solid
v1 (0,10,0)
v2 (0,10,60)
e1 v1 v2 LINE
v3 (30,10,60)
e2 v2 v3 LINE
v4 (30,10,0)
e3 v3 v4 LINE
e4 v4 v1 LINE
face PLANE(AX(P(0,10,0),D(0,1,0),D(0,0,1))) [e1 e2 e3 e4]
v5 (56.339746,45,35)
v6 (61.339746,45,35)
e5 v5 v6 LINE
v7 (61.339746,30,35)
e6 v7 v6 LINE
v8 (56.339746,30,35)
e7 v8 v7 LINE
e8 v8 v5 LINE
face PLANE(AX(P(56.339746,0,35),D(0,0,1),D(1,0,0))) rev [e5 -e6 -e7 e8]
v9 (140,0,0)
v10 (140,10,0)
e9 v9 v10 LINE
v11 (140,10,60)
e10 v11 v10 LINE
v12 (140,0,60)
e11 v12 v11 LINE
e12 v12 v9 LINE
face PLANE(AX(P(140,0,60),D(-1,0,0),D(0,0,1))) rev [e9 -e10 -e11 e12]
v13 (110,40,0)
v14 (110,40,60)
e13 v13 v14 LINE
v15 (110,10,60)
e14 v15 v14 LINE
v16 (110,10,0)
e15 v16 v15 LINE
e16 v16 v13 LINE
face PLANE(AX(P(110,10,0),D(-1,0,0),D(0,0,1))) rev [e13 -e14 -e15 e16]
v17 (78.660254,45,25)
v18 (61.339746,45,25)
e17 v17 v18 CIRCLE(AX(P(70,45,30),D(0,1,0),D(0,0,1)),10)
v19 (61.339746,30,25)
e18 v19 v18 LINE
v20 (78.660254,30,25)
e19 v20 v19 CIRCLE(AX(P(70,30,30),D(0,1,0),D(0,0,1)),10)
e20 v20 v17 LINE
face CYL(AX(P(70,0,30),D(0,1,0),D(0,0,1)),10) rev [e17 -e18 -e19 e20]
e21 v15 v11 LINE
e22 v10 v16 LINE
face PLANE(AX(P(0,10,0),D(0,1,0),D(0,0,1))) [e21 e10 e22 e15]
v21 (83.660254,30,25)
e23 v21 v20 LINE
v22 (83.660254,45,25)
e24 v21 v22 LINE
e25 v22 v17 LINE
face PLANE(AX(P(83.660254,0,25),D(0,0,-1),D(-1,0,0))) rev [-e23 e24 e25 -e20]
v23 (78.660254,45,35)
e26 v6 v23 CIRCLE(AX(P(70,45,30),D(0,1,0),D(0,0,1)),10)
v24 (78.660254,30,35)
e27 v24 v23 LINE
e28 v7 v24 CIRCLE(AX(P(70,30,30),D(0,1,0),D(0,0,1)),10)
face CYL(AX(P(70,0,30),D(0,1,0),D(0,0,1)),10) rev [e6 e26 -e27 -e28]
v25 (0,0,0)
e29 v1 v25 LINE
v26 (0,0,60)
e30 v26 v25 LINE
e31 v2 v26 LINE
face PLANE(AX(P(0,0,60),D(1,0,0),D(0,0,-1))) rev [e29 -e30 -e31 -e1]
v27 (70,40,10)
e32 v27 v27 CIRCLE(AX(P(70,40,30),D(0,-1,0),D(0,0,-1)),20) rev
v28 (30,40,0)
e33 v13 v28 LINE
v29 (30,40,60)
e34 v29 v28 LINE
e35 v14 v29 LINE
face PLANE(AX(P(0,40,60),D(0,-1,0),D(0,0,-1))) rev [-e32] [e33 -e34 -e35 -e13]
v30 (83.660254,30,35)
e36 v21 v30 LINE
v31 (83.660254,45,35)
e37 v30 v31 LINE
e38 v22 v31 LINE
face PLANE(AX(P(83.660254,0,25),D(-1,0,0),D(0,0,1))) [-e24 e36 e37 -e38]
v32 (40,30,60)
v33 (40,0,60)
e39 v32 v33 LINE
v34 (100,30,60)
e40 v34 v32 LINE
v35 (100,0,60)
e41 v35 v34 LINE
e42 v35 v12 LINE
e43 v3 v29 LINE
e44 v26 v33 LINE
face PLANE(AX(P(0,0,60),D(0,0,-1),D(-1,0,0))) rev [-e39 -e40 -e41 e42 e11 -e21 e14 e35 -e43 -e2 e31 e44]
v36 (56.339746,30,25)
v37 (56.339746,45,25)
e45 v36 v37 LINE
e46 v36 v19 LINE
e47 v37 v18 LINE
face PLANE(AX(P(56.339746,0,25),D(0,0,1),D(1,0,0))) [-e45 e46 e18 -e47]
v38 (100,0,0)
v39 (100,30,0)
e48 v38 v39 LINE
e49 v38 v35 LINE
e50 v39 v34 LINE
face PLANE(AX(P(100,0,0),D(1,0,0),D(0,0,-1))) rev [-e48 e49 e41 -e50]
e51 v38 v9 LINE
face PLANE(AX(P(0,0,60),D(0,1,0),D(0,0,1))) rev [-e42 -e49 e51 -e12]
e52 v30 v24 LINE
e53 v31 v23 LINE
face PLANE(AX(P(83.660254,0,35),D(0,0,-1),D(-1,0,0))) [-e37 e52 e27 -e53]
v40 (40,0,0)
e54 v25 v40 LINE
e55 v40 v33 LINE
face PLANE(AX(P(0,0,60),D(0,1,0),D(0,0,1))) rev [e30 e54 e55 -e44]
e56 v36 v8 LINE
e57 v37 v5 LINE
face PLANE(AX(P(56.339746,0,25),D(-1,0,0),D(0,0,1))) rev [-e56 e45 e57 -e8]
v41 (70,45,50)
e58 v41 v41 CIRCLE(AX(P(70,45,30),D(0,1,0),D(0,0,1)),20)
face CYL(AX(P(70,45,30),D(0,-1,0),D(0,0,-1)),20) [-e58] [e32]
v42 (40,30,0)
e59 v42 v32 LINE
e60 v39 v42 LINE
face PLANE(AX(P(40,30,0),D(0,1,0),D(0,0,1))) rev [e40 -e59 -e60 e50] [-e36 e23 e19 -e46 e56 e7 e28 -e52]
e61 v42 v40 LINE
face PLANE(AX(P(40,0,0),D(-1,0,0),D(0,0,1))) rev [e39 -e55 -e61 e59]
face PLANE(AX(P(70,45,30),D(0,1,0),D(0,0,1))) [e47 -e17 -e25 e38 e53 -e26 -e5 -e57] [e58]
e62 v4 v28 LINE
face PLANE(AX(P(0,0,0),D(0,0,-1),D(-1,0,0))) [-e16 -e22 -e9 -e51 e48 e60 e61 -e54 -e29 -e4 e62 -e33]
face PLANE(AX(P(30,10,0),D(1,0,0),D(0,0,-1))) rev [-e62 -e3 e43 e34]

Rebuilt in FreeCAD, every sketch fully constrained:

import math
import FreeCAD as App
import Part
import Sketcher
from FreeCAD import Vector
Q = App.Units.Quantity

doc = App.newDocument("Part")
body = doc.addObject("PartDesign::Body", "Body")

# Sketch on XY plane
sketch1 = body.newObject("Sketcher::SketchObject", "Sketch")
sketch1.AttachmentSupport = (doc.getObject("XY_Plane"), [""])
sketch1.MapMode = "FlatFace"
sketch1.addGeometry([
    Part.LineSegment(Vector(0, 40, 0), Vector(0, 0, 0)),
    Part.LineSegment(Vector(0, 0, 0), Vector(140, 0, 0)),
    Part.LineSegment(Vector(140, 0, 0), Vector(140, 40, 0)),
    Part.LineSegment(Vector(140, 40, 0), Vector(0, 40, 0)),
], False)
sketch1.addConstraint([
    Sketcher.Constraint("Coincident", 0, 2, 1, 1),
    Sketcher.Constraint("Coincident", 1, 2, 2, 1),
    Sketcher.Constraint("Coincident", 2, 2, 3, 1),
    Sketcher.Constraint("Coincident", 3, 2, 0, 1),
    Sketcher.Constraint("Vertical", 0),
    Sketcher.Constraint("Horizontal", 1),
    Sketcher.Constraint("Vertical", 2),
    Sketcher.Constraint("Horizontal", 3),
    Sketcher.Constraint("Coincident", 0, 2, -1, 1),
    Sketcher.Constraint("DistanceX", 1, 1, 1, 2, Q("140 mm")),
    Sketcher.Constraint("DistanceY", 0, 2, 0, 1, Q("40 mm")),
])
pad1 = body.newObject("PartDesign::Pad", "Pad")
pad1.Profile = sketch1
pad1.Length = 60

# Sketch on XZ plane
sketch2 = body.newObject("Sketcher::SketchObject", "Sketch001")
sketch2.AttachmentSupport = (doc.getObject("XZ_Plane"), [""])
sketch2.MapMode = "FlatFace"
sketch2.AttachmentOffset = App.Placement(Vector(0, 0, -40), App.Rotation())
sketch2.addGeometry([
    Part.LineSegment(Vector(0, 0, 0), Vector(0, 60, 0)),  # 0
    Part.LineSegment(Vector(0, 60, 0), Vector(30, 60, 0)),  # 1
    Part.LineSegment(Vector(30, 60, 0), Vector(30, 0, 0)),  # 2
    Part.LineSegment(Vector(30, 0, 0), Vector(0, 0, 0)),  # 3
    Part.LineSegment(Vector(110, 0, 0), Vector(110, 60, 0)),  # 4
    Part.LineSegment(Vector(110, 60, 0), Vector(140, 60, 0)),  # 5
    Part.LineSegment(Vector(140, 60, 0), Vector(140, 0, 0)),  # 6
    Part.LineSegment(Vector(140, 0, 0), Vector(110, 0, 0)),  # 7
], False)
sketch2.addConstraint([
    Sketcher.Constraint("Coincident", 0, 2, 1, 1),
    Sketcher.Constraint("Coincident", 1, 2, 2, 1),
    Sketcher.Constraint("Coincident", 2, 2, 3, 1),
    Sketcher.Constraint("Coincident", 3, 2, 0, 1),
    Sketcher.Constraint("Coincident", 4, 2, 5, 1),
    Sketcher.Constraint("Coincident", 5, 2, 6, 1),
    Sketcher.Constraint("Coincident", 6, 2, 7, 1),
    Sketcher.Constraint("Coincident", 7, 2, 4, 1),
    Sketcher.Constraint("Vertical", 0),
    Sketcher.Constraint("Horizontal", 1),
    Sketcher.Constraint("Vertical", 2),
    Sketcher.Constraint("Horizontal", 3),
    Sketcher.Constraint("Vertical", 4),
    Sketcher.Constraint("Horizontal", 5),
    Sketcher.Constraint("Vertical", 6),
    Sketcher.Constraint("Horizontal", 7),
    Sketcher.Constraint("Coincident", 3, 2, -1, 1),
    Sketcher.Constraint("PointOnObject", 6, 2, -1),
    Sketcher.Constraint("Horizontal", 1, 2, 4, 2),
    Sketcher.Constraint("Equal", 3, 5),
    Sketcher.Constraint("DistanceX", 1, 1, 1, 2, Q("30 mm")),
    Sketcher.Constraint("DistanceY", 0, 1, 0, 2, Q("60 mm")),
    Sketcher.Constraint("DistanceX", -1, 1, 4, 2, Q("110 mm")),
])
pocket1 = body.newObject("PartDesign::Pocket", "Pocket")
pocket1.Profile = sketch2
pocket1.Length = 30
pocket1.Reversed = True

# Sketch on XY plane
sketch3 = body.newObject("Sketcher::SketchObject", "Sketch002")
sketch3.AttachmentSupport = (doc.getObject("XY_Plane"), [""])
sketch3.MapMode = "FlatFace"
sketch3.AttachmentOffset = App.Placement(Vector(0, 0, 60), App.Rotation())
sketch3.addGeometry([
    Part.LineSegment(Vector(40, 30, 0), Vector(40, 0, 0)),
    Part.LineSegment(Vector(40, 0, 0), Vector(100, 0, 0)),
    Part.LineSegment(Vector(100, 0, 0), Vector(100, 30, 0)),
    Part.LineSegment(Vector(100, 30, 0), Vector(40, 30, 0)),
], False)
sketch3.addConstraint([
    Sketcher.Constraint("Coincident", 0, 2, 1, 1),
    Sketcher.Constraint("Coincident", 1, 2, 2, 1),
    Sketcher.Constraint("Coincident", 2, 2, 3, 1),
    Sketcher.Constraint("Coincident", 3, 2, 0, 1),
    Sketcher.Constraint("Vertical", 0),
    Sketcher.Constraint("Horizontal", 1),
    Sketcher.Constraint("Vertical", 2),
    Sketcher.Constraint("Horizontal", 3),
    Sketcher.Constraint("PointOnObject", 0, 2, -1),
    Sketcher.Constraint("DistanceX", 1, 1, 1, 2, Q("60 mm")),
    Sketcher.Constraint("DistanceY", 0, 2, 0, 1, Q("30 mm")),
    Sketcher.Constraint("DistanceX", -1, 1, 0, 2, Q("40 mm")),
])
pocket2 = body.newObject("PartDesign::Pocket", "Pocket001")
pocket2.Profile = sketch3
pocket2.Type = "ThroughAll"

# Sketch on XZ plane
sketch4 = body.newObject("Sketcher::SketchObject", "Sketch003")
sketch4.AttachmentSupport = (doc.getObject("XZ_Plane"), [""])
sketch4.MapMode = "FlatFace"
sketch4.AttachmentOffset = App.Placement(Vector(0, 0, -40), App.Rotation())
sketch4.addGeometry([
    Part.LineSegment(Vector(61, 25, 0), Vector(56, 25, 0)),  # 0
    Part.LineSegment(Vector(56, 25, 0), Vector(56, 35, 0)),  # 1
    Part.LineSegment(Vector(56, 35, 0), Vector(61, 35, 0)),  # 2
    Part.ArcOfCircle(Part.Circle(Vector(70, 30, 0), Vector(0, 0, 1), 10), math.radians(30), math.radians(150)),  # 3
    Part.LineSegment(Vector(79, 35, 0), Vector(84, 35, 0)),  # 4
    Part.LineSegment(Vector(84, 35, 0), Vector(84, 25, 0)),  # 5
    Part.LineSegment(Vector(84, 25, 0), Vector(79, 25, 0)),  # 6
    Part.ArcOfCircle(Part.Circle(Vector(70, 30, 0), Vector(0, 0, 1), 10), math.radians(-150), math.radians(-30)),  # 7
], False)
sketch4.addConstraint([
    Sketcher.Constraint("Coincident", 0, 2, 1, 1),
    Sketcher.Constraint("Coincident", 1, 2, 2, 1),
    Sketcher.Constraint("Coincident", 2, 2, 3, 2),
    Sketcher.Constraint("Coincident", 3, 1, 4, 1),
    Sketcher.Constraint("Coincident", 4, 2, 5, 1),
    Sketcher.Constraint("Coincident", 5, 2, 6, 1),
    Sketcher.Constraint("Coincident", 6, 2, 7, 2),
    Sketcher.Constraint("Coincident", 7, 1, 0, 1),
    Sketcher.Constraint("Horizontal", 0),
    Sketcher.Constraint("Vertical", 1),
    Sketcher.Constraint("Horizontal", 2),
    Sketcher.Constraint("Horizontal", 4),
    Sketcher.Constraint("Vertical", 5),
    Sketcher.Constraint("Horizontal", 6),
    Sketcher.Constraint("Coincident", 7, 3, 3, 3),
    Sketcher.Constraint("Equal", 3, 7),
    Sketcher.Constraint("Horizontal", 2, 2, 3, 1),
    Sketcher.Constraint("Horizontal", 0, 2, 5, 2),
    Sketcher.Constraint("Vertical", 3, 1, 6, 2),
    Sketcher.Constraint("Equal", 2, 4),
    Sketcher.Constraint("Radius", 3, Q("10 mm")),
    Sketcher.Constraint("DistanceX", 0, 2, 0, 1, Q("5 mm")),
    Sketcher.Constraint("DistanceY", 1, 1, 1, 2, Q("10 mm")),
    Sketcher.Constraint("DistanceX", -1, 1, 3, 3, Q("70 mm")),
    Sketcher.Constraint("DistanceY", -1, 1, 3, 3, Q("30 mm")),
])
pocket3 = body.newObject("PartDesign::Pocket", "Pocket002")
pocket3.Profile = sketch4
pocket3.Type = "ThroughAll"
pocket3.Reversed = True

# Sketch on XZ plane
sketch5 = body.newObject("Sketcher::SketchObject", "Sketch004")
sketch5.AttachmentSupport = (doc.getObject("XZ_Plane"), [""])
sketch5.MapMode = "FlatFace"
sketch5.AttachmentOffset = App.Placement(Vector(0, 0, -40), App.Rotation())
sketch5.addGeometry([
    Part.Circle(Vector(70, 30, 0), Vector(0, 0, 1), 20),  # 0
    Part.LineSegment(Vector(56, 35, 0), Vector(56, 25, 0)),  # 1
    Part.LineSegment(Vector(56, 25, 0), Vector(61, 25, 0)),  # 2
    Part.ArcOfCircle(Part.Circle(Vector(70, 30, 0), Vector(0, 0, 1), 10), math.radians(-150), math.radians(-30)),  # 3
    Part.LineSegment(Vector(79, 25, 0), Vector(84, 25, 0)),  # 4
    Part.LineSegment(Vector(84, 25, 0), Vector(84, 35, 0)),  # 5
    Part.LineSegment(Vector(84, 35, 0), Vector(79, 35, 0)),  # 6
    Part.ArcOfCircle(Part.Circle(Vector(70, 30, 0), Vector(0, 0, 1), 10), math.radians(30), math.radians(150)),  # 7
    Part.LineSegment(Vector(61, 35, 0), Vector(56, 35, 0)),  # 8
], False)
sketch5.addConstraint([
    Sketcher.Constraint("Coincident", 1, 2, 2, 1),
    Sketcher.Constraint("Coincident", 2, 2, 3, 1),
    Sketcher.Constraint("Coincident", 3, 2, 4, 1),
    Sketcher.Constraint("Coincident", 4, 2, 5, 1),
    Sketcher.Constraint("Coincident", 5, 2, 6, 1),
    Sketcher.Constraint("Coincident", 6, 2, 7, 1),
    Sketcher.Constraint("Coincident", 7, 2, 8, 1),
    Sketcher.Constraint("Coincident", 8, 2, 1, 1),
    Sketcher.Constraint("Vertical", 1),
    Sketcher.Constraint("Horizontal", 2),
    Sketcher.Constraint("Horizontal", 4),
    Sketcher.Constraint("Vertical", 5),
    Sketcher.Constraint("Horizontal", 6),
    Sketcher.Constraint("Horizontal", 8),
    Sketcher.Constraint("Coincident", 3, 3, 0, 3),
    Sketcher.Constraint("Coincident", 7, 3, 0, 3),
    Sketcher.Constraint("Equal", 3, 7),
    Sketcher.Constraint("Horizontal", 2, 2, 3, 2),
    Sketcher.Constraint("Horizontal", 6, 2, 7, 2),
    Sketcher.Constraint("Vertical", 3, 2, 6, 2),
    Sketcher.Constraint("Equal", 2, 4),
    Sketcher.Constraint("Diameter", 0, Q("40 mm")),
    Sketcher.Constraint("Radius", 3, Q("10 mm")),
    Sketcher.Constraint("DistanceX", 2, 1, 2, 2, Q("5 mm")),
    Sketcher.Constraint("DistanceY", 1, 2, 1, 1, Q("10 mm")),
    Sketcher.Constraint("DistanceX", -1, 1, 0, 3, Q("70 mm")),
    Sketcher.Constraint("DistanceY", -1, 1, 0, 3, Q("30 mm")),
])
pad2 = body.newObject("PartDesign::Pad", "Pad001")
pad2.Profile = sketch5
pad2.Length = 5
pad2.Reversed = True

doc.recompute()
